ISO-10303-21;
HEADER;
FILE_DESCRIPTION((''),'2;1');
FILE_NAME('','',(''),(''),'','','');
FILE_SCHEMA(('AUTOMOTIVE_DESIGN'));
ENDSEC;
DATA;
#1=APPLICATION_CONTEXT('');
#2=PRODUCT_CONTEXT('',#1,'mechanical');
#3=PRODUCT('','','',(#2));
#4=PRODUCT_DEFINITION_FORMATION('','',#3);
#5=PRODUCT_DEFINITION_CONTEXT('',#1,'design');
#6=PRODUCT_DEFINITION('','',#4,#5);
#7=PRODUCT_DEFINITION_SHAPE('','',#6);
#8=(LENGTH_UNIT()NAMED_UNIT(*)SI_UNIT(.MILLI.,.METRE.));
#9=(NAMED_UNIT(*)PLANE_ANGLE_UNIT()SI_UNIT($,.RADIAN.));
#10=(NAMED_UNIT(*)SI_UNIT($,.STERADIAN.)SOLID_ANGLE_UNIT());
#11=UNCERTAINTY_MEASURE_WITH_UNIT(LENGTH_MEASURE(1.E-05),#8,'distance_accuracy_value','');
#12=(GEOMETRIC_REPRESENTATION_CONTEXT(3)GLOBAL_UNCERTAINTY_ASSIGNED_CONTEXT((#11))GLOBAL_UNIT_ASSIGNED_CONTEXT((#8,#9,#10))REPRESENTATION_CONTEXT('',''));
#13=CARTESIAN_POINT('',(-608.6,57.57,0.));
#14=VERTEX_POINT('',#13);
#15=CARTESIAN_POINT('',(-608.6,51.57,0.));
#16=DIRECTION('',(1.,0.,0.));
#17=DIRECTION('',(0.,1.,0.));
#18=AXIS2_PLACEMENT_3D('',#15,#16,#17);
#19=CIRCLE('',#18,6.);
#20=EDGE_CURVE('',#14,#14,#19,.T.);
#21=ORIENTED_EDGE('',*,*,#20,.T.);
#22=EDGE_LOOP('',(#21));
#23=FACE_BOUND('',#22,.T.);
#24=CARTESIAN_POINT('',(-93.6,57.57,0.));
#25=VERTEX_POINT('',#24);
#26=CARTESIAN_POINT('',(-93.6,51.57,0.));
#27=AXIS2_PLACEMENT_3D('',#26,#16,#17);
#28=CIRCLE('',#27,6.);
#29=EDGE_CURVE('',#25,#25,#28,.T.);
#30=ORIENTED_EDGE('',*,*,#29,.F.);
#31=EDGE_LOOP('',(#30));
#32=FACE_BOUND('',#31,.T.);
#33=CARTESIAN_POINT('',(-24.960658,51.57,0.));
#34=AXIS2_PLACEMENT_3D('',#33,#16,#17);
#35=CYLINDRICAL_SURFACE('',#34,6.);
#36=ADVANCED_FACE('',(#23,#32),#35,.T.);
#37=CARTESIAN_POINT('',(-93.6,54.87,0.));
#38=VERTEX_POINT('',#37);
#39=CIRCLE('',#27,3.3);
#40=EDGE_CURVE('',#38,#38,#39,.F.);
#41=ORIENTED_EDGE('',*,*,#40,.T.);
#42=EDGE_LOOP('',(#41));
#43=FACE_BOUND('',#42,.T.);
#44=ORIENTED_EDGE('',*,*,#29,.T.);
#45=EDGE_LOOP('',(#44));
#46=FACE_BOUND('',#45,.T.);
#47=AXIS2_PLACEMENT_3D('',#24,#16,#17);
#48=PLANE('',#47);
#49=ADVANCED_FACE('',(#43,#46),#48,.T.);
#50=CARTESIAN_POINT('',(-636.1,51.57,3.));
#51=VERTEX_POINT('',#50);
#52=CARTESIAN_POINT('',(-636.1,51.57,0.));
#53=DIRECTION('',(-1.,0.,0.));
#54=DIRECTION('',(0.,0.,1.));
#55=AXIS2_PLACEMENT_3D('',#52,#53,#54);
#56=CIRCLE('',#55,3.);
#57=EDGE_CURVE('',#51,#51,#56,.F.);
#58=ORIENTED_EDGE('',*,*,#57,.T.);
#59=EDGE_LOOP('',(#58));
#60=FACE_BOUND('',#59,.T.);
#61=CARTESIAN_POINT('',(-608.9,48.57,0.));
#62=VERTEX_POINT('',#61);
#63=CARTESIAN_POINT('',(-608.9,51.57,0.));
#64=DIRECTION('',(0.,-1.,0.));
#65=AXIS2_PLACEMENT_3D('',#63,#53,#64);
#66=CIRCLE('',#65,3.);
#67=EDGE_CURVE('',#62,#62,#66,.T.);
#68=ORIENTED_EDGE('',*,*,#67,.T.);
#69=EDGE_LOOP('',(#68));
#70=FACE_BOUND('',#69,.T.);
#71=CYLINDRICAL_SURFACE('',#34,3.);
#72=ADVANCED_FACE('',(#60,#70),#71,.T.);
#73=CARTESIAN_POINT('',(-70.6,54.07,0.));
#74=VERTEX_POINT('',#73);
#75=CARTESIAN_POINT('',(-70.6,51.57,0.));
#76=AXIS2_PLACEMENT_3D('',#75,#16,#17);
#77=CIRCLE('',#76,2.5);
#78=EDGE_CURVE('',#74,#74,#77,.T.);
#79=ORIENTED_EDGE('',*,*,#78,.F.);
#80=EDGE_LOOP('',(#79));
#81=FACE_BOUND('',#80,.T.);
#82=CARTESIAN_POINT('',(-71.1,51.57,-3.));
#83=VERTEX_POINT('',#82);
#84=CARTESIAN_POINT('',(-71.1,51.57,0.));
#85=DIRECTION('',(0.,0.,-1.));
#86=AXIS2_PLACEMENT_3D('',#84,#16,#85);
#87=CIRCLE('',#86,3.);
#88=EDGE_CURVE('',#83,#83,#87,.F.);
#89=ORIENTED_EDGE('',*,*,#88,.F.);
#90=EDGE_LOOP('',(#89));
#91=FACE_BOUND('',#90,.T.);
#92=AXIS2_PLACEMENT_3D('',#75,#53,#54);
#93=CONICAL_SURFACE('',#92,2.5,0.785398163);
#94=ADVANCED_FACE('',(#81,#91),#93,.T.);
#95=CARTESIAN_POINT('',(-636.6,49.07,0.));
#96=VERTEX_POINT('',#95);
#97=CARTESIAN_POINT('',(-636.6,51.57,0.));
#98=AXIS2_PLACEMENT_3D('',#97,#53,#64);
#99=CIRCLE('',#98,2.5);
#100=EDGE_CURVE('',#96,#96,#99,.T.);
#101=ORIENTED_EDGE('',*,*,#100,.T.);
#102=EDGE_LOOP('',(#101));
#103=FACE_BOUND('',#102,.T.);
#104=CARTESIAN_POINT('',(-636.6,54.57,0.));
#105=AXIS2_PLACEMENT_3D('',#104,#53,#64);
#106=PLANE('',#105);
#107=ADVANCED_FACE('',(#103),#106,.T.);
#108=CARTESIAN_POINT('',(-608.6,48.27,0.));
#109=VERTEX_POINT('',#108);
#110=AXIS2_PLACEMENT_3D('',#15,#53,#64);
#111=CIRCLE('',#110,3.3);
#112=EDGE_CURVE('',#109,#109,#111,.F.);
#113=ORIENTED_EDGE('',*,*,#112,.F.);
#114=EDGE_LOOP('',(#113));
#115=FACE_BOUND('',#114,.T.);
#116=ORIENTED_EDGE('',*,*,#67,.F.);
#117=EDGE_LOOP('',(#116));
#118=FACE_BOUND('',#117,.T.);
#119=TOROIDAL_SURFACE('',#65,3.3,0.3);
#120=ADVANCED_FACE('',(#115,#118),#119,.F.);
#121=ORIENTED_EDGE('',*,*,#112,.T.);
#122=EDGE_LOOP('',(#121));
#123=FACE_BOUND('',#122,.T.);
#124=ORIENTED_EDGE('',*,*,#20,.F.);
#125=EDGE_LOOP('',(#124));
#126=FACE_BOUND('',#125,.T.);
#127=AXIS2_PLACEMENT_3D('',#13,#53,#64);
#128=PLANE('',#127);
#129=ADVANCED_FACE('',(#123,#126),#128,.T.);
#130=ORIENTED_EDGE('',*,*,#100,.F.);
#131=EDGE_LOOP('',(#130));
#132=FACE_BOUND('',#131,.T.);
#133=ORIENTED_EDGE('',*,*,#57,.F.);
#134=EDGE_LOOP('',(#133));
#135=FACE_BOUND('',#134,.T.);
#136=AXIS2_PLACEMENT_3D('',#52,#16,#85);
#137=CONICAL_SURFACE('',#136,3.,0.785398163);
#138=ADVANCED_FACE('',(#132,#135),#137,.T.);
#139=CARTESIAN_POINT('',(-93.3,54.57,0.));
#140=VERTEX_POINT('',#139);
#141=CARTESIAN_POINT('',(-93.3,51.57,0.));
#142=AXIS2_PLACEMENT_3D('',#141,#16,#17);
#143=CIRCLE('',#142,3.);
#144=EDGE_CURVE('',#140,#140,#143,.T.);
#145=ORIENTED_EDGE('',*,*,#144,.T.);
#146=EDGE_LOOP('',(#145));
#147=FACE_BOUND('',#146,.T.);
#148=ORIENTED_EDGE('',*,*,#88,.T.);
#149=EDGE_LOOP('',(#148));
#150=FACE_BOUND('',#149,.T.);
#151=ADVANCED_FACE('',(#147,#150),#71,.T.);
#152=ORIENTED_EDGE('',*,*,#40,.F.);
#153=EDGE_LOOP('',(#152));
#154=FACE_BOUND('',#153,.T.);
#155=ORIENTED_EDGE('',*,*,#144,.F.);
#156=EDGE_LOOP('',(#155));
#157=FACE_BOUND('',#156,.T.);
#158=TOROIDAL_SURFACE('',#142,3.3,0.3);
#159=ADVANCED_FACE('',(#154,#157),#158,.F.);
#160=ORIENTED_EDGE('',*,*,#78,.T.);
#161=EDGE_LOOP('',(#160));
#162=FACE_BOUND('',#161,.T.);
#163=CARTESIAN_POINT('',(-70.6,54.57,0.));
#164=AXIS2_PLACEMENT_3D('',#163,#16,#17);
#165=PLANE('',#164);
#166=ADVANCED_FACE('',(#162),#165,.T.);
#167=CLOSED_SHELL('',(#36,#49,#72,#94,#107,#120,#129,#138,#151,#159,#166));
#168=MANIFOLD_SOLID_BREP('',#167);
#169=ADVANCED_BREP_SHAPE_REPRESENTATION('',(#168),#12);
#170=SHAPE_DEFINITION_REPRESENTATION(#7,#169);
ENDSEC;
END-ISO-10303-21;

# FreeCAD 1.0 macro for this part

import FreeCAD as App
import Part
import Sketcher

V = App.Vector


def edges_at(feature, points):
    """Names of the edges that pass closest to the given points."""
    edges = feature.Shape.Edges
    near = lambda p: min(range(len(edges)), key=lambda i: edges[i].distToShape(Part.Vertex(*p))[0])
    return sorted({f"Edge{near(p) + 1}" for p in points})

doc = App.newDocument("Part")
params = doc.addObject("Spreadsheet::Sheet", "Params")
for row, (alias, value) in enumerate([
    ("sketch1_width", "28 mm"),
    ("sketch1_width2", "566 mm"),
    ("sketch1_width3", "23 mm"),
    ("sketch1_height", "3 mm"),
    ("revolution_angle", "360 deg"),
    ("chamfer_size", "0.5 mm"),
    ("fillet_radius", "0.3 mm"),
], start=1):
    params.set(f"A{row}", alias)
    params.set(f"B{row}", "=" + value)
    params.setAlias(f"B{row}", alias)

body = doc.addObject("PartDesign::Body", "Body")

# Sketch on XY plane
sketch1 = body.newObject("Sketcher::SketchObject", "Sketch")
sketch1.AttachmentSupport = (doc.getObject("XY_Plane"), [""])
sketch1.MapMode = "FlatFace"
sketch1.addGeometry([
    Part.LineSegment(V(-608.6, 54.6, 0), V(-636.6, 54.6, 0)),  # 0
    Part.LineSegment(V(-636.6, 54.6, 0), V(-636.6, 51.6, 0)),  # 1
    Part.LineSegment(V(-636.6, 51.6, 0), V(-70.6, 51.6, 0)),  # 2
    Part.LineSegment(V(-70.6, 51.6, 0), V(-70.6, 54.6, 0)),  # 3
    Part.LineSegment(V(-70.6, 54.6, 0), V(-93.6, 54.6, 0)),  # 4
    Part.LineSegment(V(-93.6, 54.6, 0), V(-93.6, 57.6, 0)),  # 5
    Part.LineSegment(V(-93.6, 57.6, 0), V(-608.6, 57.6, 0)),  # 6
    Part.LineSegment(V(-608.6, 57.6, 0), V(-608.6, 54.6, 0)),  # 7
], False)
sketch1.addGeometry(Part.LineSegment(V(-70.6, 51.6, 0), V(-636.6, 51.6, 0)), True)  # axis
sketch1.addConstraint([
    Sketcher.Constraint("Coincident", 0, 2, 1, 1),
    Sketcher.Constraint("Coincident", 1, 2, 2, 1),
    Sketcher.Constraint("Coincident", 2, 2, 3, 1),
    Sketcher.Constraint("Coincident", 3, 2, 4, 1),
    Sketcher.Constraint("Coincident", 4, 2, 5, 1),
    Sketcher.Constraint("Coincident", 5, 2, 6, 1),
    Sketcher.Constraint("Coincident", 6, 2, 7, 1),
    Sketcher.Constraint("Coincident", 7, 2, 0, 1),
    Sketcher.Constraint("Horizontal", 0),
    Sketcher.Constraint("Vertical", 1),
    Sketcher.Constraint("Horizontal", 2),
    Sketcher.Constraint("Vertical", 3),
    Sketcher.Constraint("Horizontal", 4),
    Sketcher.Constraint("Vertical", 5),
    Sketcher.Constraint("Horizontal", 6),
    Sketcher.Constraint("Vertical", 7),
    Sketcher.Constraint("Horizontal", 8),
    Sketcher.Constraint("Coincident", 8, 1, 2, 2),
    Sketcher.Constraint("Horizontal", 0, 2, 3, 2),
    Sketcher.Constraint("Vertical", 0, 2, 8, 2),
    Sketcher.Constraint("Equal", 3, 5),
    Sketcher.Constraint("DistanceX", 0, 2, 0, 1, 28.0),
    Sketcher.Constraint("DistanceX", 2, 1, 2, 2, 566.0),
    Sketcher.Constraint("DistanceX", 4, 2, 4, 1, 23.0),
    Sketcher.Constraint("DistanceY", 1, 2, 1, 1, 3.0),
    Sketcher.Constraint("DistanceX", 0, 2, -1, 1, 636.6),
    Sketcher.Constraint("DistanceY", -1, 1, 0, 2, 54.57),
])
sketch1.setExpression("Constraints[21]", "Params.sketch1_width")
sketch1.setExpression("Constraints[22]", "Params.sketch1_width2")
sketch1.setExpression("Constraints[23]", "Params.sketch1_width3")
sketch1.setExpression("Constraints[24]", "Params.sketch1_height")
revolution = body.newObject("PartDesign::Revolution", "Revolution")
revolution.Profile = sketch1
revolution.ReferenceAxis = (sketch1, ["Axis0"])
revolution.setExpression("Angle", "Params.revolution_angle")
doc.recompute()

chamfer = body.newObject("PartDesign::Chamfer", "Chamfer")
chamfer.Base = (revolution, edges_at(revolution, [(-70.6, 48.57, 0), (-636.6, 48.57, 0)]))
chamfer.setExpression("Size", "Params.chamfer_size")
doc.recompute()

fillet = body.newObject("PartDesign::Fillet", "Fillet")
fillet.Base = (chamfer, edges_at(chamfer, [(-93.6, 48.57, 0), (-608.6, 48.57, 0)]))
fillet.setExpression("Radius", "Params.fillet_radius")

doc.recompute()
